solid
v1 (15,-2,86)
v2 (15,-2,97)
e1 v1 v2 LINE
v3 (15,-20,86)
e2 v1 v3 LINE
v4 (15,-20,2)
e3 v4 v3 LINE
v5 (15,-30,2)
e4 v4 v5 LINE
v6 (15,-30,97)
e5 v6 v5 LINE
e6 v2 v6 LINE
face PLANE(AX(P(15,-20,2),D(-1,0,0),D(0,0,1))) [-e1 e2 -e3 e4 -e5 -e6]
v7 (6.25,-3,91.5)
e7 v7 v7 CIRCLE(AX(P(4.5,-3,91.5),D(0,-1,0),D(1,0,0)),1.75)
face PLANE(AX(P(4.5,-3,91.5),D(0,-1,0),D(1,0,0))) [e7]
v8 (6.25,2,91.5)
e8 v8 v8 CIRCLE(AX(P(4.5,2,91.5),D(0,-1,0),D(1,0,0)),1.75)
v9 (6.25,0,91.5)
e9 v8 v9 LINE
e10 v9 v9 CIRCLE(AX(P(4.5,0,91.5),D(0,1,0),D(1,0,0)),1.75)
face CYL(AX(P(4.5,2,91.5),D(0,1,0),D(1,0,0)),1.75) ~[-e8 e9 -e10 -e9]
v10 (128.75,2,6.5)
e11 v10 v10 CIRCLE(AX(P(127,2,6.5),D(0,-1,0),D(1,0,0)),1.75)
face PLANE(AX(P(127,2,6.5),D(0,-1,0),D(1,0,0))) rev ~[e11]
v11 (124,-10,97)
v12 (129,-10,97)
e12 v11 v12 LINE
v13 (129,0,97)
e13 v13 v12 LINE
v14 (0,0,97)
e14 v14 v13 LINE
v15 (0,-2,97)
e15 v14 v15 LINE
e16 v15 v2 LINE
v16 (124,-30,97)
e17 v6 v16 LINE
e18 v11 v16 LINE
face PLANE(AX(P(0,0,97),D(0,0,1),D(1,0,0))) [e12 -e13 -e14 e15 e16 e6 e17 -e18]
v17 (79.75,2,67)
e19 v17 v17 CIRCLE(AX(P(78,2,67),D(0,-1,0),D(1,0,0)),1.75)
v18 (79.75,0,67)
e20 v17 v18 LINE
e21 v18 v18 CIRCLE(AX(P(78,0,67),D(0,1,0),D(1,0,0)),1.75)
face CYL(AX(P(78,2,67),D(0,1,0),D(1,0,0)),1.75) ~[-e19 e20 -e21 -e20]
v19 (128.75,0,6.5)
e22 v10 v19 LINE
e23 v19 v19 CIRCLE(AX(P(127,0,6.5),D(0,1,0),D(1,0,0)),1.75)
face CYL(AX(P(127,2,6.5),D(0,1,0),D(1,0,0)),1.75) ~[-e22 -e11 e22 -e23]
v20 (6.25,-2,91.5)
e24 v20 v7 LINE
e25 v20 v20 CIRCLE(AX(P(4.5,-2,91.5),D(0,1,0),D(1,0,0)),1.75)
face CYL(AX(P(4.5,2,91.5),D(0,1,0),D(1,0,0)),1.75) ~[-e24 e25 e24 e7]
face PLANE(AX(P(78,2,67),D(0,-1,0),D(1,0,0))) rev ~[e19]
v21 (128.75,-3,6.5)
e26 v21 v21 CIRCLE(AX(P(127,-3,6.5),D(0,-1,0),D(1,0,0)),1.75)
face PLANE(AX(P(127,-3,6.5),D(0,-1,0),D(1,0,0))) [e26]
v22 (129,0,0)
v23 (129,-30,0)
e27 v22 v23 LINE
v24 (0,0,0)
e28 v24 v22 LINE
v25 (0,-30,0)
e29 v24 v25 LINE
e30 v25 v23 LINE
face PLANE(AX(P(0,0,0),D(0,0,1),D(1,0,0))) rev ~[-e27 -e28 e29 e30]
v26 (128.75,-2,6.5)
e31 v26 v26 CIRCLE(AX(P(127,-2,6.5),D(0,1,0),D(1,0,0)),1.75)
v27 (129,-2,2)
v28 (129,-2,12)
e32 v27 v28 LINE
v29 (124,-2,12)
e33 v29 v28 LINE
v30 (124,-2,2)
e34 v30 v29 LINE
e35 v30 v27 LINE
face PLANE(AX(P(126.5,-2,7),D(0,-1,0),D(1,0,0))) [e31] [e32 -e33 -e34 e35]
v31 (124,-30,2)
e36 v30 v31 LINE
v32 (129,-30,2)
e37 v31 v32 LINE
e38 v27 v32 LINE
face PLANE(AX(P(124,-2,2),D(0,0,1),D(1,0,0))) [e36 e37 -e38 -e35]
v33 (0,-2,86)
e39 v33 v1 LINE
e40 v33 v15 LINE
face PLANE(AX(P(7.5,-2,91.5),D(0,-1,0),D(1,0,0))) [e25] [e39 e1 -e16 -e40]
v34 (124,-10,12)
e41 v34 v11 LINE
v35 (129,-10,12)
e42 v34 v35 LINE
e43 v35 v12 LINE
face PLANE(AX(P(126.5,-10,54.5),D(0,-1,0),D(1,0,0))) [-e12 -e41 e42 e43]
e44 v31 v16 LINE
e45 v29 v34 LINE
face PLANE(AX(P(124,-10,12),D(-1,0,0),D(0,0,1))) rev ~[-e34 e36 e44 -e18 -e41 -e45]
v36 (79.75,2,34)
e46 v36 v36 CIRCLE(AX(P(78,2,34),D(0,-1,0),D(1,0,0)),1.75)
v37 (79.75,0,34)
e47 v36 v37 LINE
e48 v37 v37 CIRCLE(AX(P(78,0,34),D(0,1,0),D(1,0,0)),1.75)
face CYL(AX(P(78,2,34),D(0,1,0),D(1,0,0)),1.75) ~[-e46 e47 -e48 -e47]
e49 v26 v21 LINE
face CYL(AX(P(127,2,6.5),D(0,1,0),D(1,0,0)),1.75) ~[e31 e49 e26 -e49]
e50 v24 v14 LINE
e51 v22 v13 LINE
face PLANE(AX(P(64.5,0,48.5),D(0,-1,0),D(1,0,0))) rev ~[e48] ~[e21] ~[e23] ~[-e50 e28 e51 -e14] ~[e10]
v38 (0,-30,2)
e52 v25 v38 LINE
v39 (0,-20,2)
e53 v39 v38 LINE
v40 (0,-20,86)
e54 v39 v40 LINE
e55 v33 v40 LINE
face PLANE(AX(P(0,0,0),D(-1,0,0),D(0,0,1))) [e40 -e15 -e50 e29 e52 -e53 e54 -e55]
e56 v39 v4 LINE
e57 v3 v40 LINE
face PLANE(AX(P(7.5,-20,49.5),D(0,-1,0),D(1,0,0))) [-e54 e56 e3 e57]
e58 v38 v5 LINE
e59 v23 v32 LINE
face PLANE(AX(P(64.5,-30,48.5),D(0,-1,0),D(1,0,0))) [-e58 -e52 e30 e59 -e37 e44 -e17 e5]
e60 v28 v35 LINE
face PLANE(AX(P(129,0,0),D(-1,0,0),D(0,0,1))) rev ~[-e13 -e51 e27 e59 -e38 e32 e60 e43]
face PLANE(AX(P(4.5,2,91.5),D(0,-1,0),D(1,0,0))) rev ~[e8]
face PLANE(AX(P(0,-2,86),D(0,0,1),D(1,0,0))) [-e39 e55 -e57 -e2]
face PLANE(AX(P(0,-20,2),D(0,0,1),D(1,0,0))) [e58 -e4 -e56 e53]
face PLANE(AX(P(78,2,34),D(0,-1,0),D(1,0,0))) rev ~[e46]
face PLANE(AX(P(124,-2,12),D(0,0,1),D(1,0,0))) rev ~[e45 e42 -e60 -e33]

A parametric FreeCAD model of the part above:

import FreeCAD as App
import Part
import Sketcher
from FreeCAD import Vector
Q = App.Units.Quantity

doc = App.newDocument("Part")
body = doc.addObject("PartDesign::Body", "Body")

sketch1 = body.newObject("Sketcher::SketchObject", "Sketch")
sketch1.AttachmentSupport = (doc.getObject("XZ_Plane"), [""])
sketch1.MapMode = "FlatFace"
sketch1.addGeometry([
    Part.LineSegment(Vector(0, 97, 0), Vector(0, 0, 0)),
    Part.LineSegment(Vector(0, 0, 0), Vector(129, 0, 0)),
    Part.LineSegment(Vector(129, 0, 0), Vector(129, 97, 0)),
    Part.LineSegment(Vector(129, 97, 0), Vector(0, 97, 0)),
], False)
sketch1.addConstraint([
    Sketcher.Constraint("Coincident", 0, 2, 1, 1),
    Sketcher.Constraint("Coincident", 1, 2, 2, 1),
    Sketcher.Constraint("Coincident", 2, 2, 3, 1),
    Sketcher.Constraint("Coincident", 3, 2, 0, 1),
    Sketcher.Constraint("Vertical", 0),
    Sketcher.Constraint("Horizontal", 1),
    Sketcher.Constraint("Vertical", 2),
    Sketcher.Constraint("Horizontal", 3),
    Sketcher.Constraint("Coincident", 0, 2, -1, 1),
    Sketcher.Constraint("DistanceX", 1, 1, 1, 2, Q("129 mm")),
    Sketcher.Constraint("DistanceY", 0, 2, 0, 1, Q("97 mm")),
])
pad1 = body.newObject("PartDesign::Pad", "Pad")
pad1.Profile = sketch1
pad1.Length = 30

sketch2 = body.newObject("Sketcher::SketchObject", "Sketch001")
sketch2.AttachmentSupport = (doc.getObject("XZ_Plane"), [""])
sketch2.MapMode = "FlatFace"
sketch2.AttachmentOffset = App.Placement(Vector(0, 0, 20), App.Rotation())
sketch2.addGeometry([
    Part.LineSegment(Vector(0, 97, 0), Vector(0, 2, 0)),
    Part.LineSegment(Vector(0, 2, 0), Vector(15, 2, 0)),
    Part.LineSegment(Vector(15, 2, 0), Vector(15, 97, 0)),
    Part.LineSegment(Vector(15, 97, 0), Vector(0, 97, 0)),
], False)
sketch2.addConstraint([
    Sketcher.Constraint("Coincident", 0, 2, 1, 1),
    Sketcher.Constraint("Coincident", 1, 2, 2, 1),
    Sketcher.Constraint("Coincident", 2, 2, 3, 1),
    Sketcher.Constraint("Coincident", 3, 2, 0, 1),
    Sketcher.Constraint("Vertical", 0),
    Sketcher.Constraint("Horizontal", 1),
    Sketcher.Constraint("Vertical", 2),
    Sketcher.Constraint("Horizontal", 3),
    Sketcher.Constraint("PointOnObject", 0, 2, -2),
    Sketcher.Constraint("DistanceX", 1, 1, 1, 2, Q("15 mm")),
    Sketcher.Constraint("DistanceY", 0, 2, 0, 1, Q("95 mm")),
    Sketcher.Constraint("DistanceY", -1, 1, 0, 2, Q("2 mm")),
])
pocket1 = body.newObject("PartDesign::Pocket", "Pocket")
pocket1.Profile = sketch2
pocket1.Length = 10
pocket1.Reversed = True

sketch3 = body.newObject("Sketcher::SketchObject", "Sketch002")
sketch3.AttachmentSupport = (doc.getObject("XZ_Plane"), [""])
sketch3.MapMode = "FlatFace"
sketch3.AttachmentOffset = App.Placement(Vector(0, 0, 2), App.Rotation())
sketch3.addGeometry([
    Part.LineSegment(Vector(0, 97, 0), Vector(0, 86, 0)),
    Part.LineSegment(Vector(0, 86, 0), Vector(15, 86, 0)),
    Part.LineSegment(Vector(15, 86, 0), Vector(15, 97, 0)),
    Part.LineSegment(Vector(15, 97, 0), Vector(0, 97, 0)),
], False)
sketch3.addConstraint([
    Sketcher.Constraint("Coincident", 0, 2, 1, 1),
    Sketcher.Constraint("Coincident", 1, 2, 2, 1),
    Sketcher.Constraint("Coincident", 2, 2, 3, 1),
    Sketcher.Constraint("Coincident", 3, 2, 0, 1),
    Sketcher.Constraint("Vertical", 0),
    Sketcher.Constraint("Horizontal", 1),
    Sketcher.Constraint("Vertical", 2),
    Sketcher.Constraint("Horizontal", 3),
    Sketcher.Constraint("PointOnObject", 0, 2, -2),
    Sketcher.Constraint("DistanceX", 1, 1, 1, 2, Q("15 mm")),
    Sketcher.Constraint("DistanceY", 0, 2, 0, 1, Q("11 mm")),
    Sketcher.Constraint("DistanceY", -1, 1, 0, 2, Q("86 mm")),
])
pocket2 = body.newObject("PartDesign::Pocket", "Pocket001")
pocket2.Profile = sketch3
pocket2.Length = 28
pocket2.Reversed = True

sketch4 = body.newObject("Sketcher::SketchObject", "Sketch003")
sketch4.AttachmentSupport = (doc.getObject("XZ_Plane"), [""])
sketch4.MapMode = "FlatFace"
sketch4.AttachmentOffset = App.Placement(Vector(0, 0, 2), App.Rotation())
sketch4.addGeometry([
    Part.LineSegment(Vector(124, 12, 0), Vector(124, 2, 0)),
    Part.LineSegment(Vector(124, 2, 0), Vector(129, 2, 0)),
    Part.LineSegment(Vector(129, 2, 0), Vector(129, 12, 0)),
    Part.LineSegment(Vector(129, 12, 0), Vector(124, 12, 0)),
], False)
sketch4.addConstraint([
    Sketcher.Constraint("Coincident", 0, 2, 1, 1),
    Sketcher.Constraint("Coincident", 1, 2, 2, 1),
    Sketcher.Constraint("Coincident", 2, 2, 3, 1),
    Sketcher.Constraint("Coincident", 3, 2, 0, 1),
    Sketcher.Constraint("Vertical", 0),
    Sketcher.Constraint("Horizontal", 1),
    Sketcher.Constraint("Vertical", 2),
    Sketcher.Constraint("Horizontal", 3),
    Sketcher.Constraint("DistanceX", 1, 1, 1, 2, Q("5 mm")),
    Sketcher.Constraint("DistanceY", 0, 2, 0, 1, Q("10 mm")),
    Sketcher.Constraint("DistanceX", -1, 1, 0, 2, Q("124 mm")),
    Sketcher.Constraint("DistanceY", -1, 1, 0, 2, Q("2 mm")),
])
pocket3 = body.newObject("PartDesign::Pocket", "Pocket002")
pocket3.Profile = sketch4
pocket3.Length = 28
pocket3.Reversed = True

sketch5 = body.newObject("Sketcher::SketchObject", "Sketch004")
sketch5.AttachmentSupport = (doc.getObject("XZ_Plane"), [""])
sketch5.MapMode = "FlatFace"
sketch5.AttachmentOffset = App.Placement(Vector(0, 0, 10), App.Rotation())
sketch5.addGeometry([
    Part.LineSegment(Vector(124, 97, 0), Vector(124, 12, 0)),
    Part.LineSegment(Vector(124, 12, 0), Vector(129, 12, 0)),
    Part.LineSegment(Vector(129, 12, 0), Vector(129, 97, 0)),
    Part.LineSegment(Vector(129, 97, 0), Vector(124, 97, 0)),
], False)
sketch5.addConstraint([
    Sketcher.Constraint("Coincident", 0, 2, 1, 1),
    Sketcher.Constraint("Coincident", 1, 2, 2, 1),
    Sketcher.Constraint("Coincident", 2, 2, 3, 1),
    Sketcher.Constraint("Coincident", 3, 2, 0, 1),
    Sketcher.Constraint("Vertical", 0),
    Sketcher.Constraint("Horizontal", 1),
    Sketcher.Constraint("Vertical", 2),
    Sketcher.Constraint("Horizontal", 3),
    Sketcher.Constraint("DistanceX", 1, 1, 1, 2, Q("5 mm")),
    Sketcher.Constraint("DistanceY", 0, 2, 0, 1, Q("85 mm")),
    Sketcher.Constraint("DistanceX", -1, 1, 0, 2, Q("124 mm")),
    Sketcher.Constraint("DistanceY", -1, 1, 0, 2, Q("12 mm")),
])
pocket4 = body.newObject("PartDesign::Pocket", "Pocket003")
pocket4.Profile = sketch5
pocket4.Length = 20
pocket4.Reversed = True

sketch6 = body.newObject("Sketcher::SketchObject", "Sketch005")
sketch6.AttachmentSupport = (doc.getObject("XZ_Plane"), [""])
sketch6.MapMode = "FlatFace"
sketch6.AttachmentOffset = App.Placement(Vector(0, 0, -2), App.Rotation())
sketch6.addGeometry(Part.Circle(Vector(127, 6.5, 0), Vector(0, 0, 1), 1.8), False)
sketch6.addConstraint([
    Sketcher.Constraint("Diameter", 0, Q("3.5 mm")),
    Sketcher.Constraint("DistanceX", -1, 1, 0, 3, Q("127 mm")),
    Sketcher.Constraint("DistanceY", -1, 1, 0, 3, Q("6.5 mm")),
])
pad2 = body.newObject("PartDesign::Pad", "Pad001")
pad2.Profile = sketch6
pad2.Length = 5

sketch7 = body.newObject("Sketcher::SketchObject", "Sketch006")
sketch7.AttachmentSupport = (doc.getObject("XZ_Plane"), [""])
sketch7.MapMode = "FlatFace"
sketch7.AttachmentOffset = App.Placement(Vector(0, 0, -2), App.Rotation())
sketch7.addGeometry(Part.Circle(Vector(4.5, 91.5, 0), Vector(0, 0, 1), 1.8), False)
sketch7.addConstraint([
    Sketcher.Constraint("Diameter", 0, Q("3.5 mm")),
    Sketcher.Constraint("DistanceX", -1, 1, 0, 3, Q("4.5 mm")),
    Sketcher.Constraint("DistanceY", -1, 1, 0, 3, Q("91.5 mm")),
])
pad3 = body.newObject("PartDesign::Pad", "Pad002")
pad3.Profile = sketch7
pad3.Length = 5

sketch8 = body.newObject("Sketcher::SketchObject", "Sketch007")
sketch8.AttachmentSupport = (doc.getObject("XZ_Plane"), [""])
sketch8.MapMode = "FlatFace"
sketch8.AttachmentOffset = App.Placement(Vector(0, 0, -2), App.Rotation())
sketch8.addGeometry(Part.Circle(Vector(78, 34, 0), Vector(0, 0, 1), 1.8), False)
sketch8.addConstraint([
    Sketcher.Constraint("Diameter", 0, Q("3.5 mm")),
    Sketcher.Constraint("DistanceX", -1, 1, 0, 3, Q("78 mm")),
    Sketcher.Constraint("DistanceY", -1, 1, 0, 3, Q("34 mm")),
])
pad4 = body.newObject("PartDesign::Pad", "Pad003")
pad4.Profile = sketch8
pad4.Length = 5

sketch9 = body.newObject("Sketcher::SketchObject", "Sketch008")
sketch9.AttachmentSupport = (doc.getObject("XZ_Plane"), [""])
sketch9.MapMode = "FlatFace"
sketch9.AttachmentOffset = App.Placement(Vector(0, 0, -2), App.Rotation())
sketch9.addGeometry(Part.Circle(Vector(78, 67, 0), Vector(0, 0, 1), 1.8), False)
sketch9.addConstraint([
    Sketcher.Constraint("Diameter", 0, Q("3.5 mm")),
    Sketcher.Constraint("DistanceX", -1, 1, 0, 3, Q("78 mm")),
    Sketcher.Constraint("DistanceY", -1, 1, 0, 3, Q("67 mm")),
])
pad5 = body.newObject("PartDesign::Pad", "Pad004")
pad5.Profile = sketch9
pad5.Length = 5

doc.recompute()
